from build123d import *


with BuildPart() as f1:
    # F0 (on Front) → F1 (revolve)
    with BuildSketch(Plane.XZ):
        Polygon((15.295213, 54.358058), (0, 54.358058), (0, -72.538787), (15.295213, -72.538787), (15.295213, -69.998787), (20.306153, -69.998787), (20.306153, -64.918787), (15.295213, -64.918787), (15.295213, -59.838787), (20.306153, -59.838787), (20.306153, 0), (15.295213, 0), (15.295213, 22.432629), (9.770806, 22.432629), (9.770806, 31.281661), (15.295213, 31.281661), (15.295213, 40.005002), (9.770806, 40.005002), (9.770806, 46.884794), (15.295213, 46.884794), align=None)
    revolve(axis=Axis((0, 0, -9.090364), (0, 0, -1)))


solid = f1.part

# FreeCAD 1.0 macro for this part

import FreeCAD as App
import Part
import Sketcher

V = App.Vector
Q = App.Units.Quantity

doc = App.newDocument("Part")
body = doc.addObject("PartDesign::Body", "Body")

sketch1 = doc.addObject("Sketcher::SketchObject", "Sketch")
body.addObject(sketch1)
sketch1.AttachmentSupport = (doc.XZ_Plane, [""])
sketch1.MapMode = "FlatFace"
sketch1.addGeometry(Part.LineSegment(V(15.3, 54.4, 0), V(0, 54.4, 0)), False)
sketch1.addGeometry(Part.LineSegment(V(0, 54.4, 0), V(0, -72.5, 0)), False)
sketch1.addGeometry(Part.LineSegment(V(0, -72.5, 0), V(15.3, -72.5, 0)), False)
sketch1.addGeometry(Part.LineSegment(V(15.3, -72.5, 0), V(15.3, -70, 0)), False)
sketch1.addGeometry(Part.LineSegment(V(15.3, -70, 0), V(20.3, -70, 0)), False)
sketch1.addGeometry(Part.LineSegment(V(20.3, -70, 0), V(20.3, -64.9, 0)), False)
sketch1.addGeometry(Part.LineSegment(V(20.3, -64.9, 0), V(15.3, -64.9, 0)), False)
sketch1.addGeometry(Part.LineSegment(V(15.3, -64.9, 0), V(15.3, -59.8, 0)), False)
sketch1.addGeometry(Part.LineSegment(V(15.3, -59.8, 0), V(20.3, -59.8, 0)), False)
sketch1.addGeometry(Part.LineSegment(V(20.3, -59.8, 0), V(20.3, 0, 0)), False)
sketch1.addGeometry(Part.LineSegment(V(20.3, 0, 0), V(15.3, 0, 0)), False)
sketch1.addGeometry(Part.LineSegment(V(15.3, 0, 0), V(15.3, 22.4, 0)), False)
sketch1.addGeometry(Part.LineSegment(V(15.3, 22.4, 0), V(9.8, 22.4, 0)), False)
sketch1.addGeometry(Part.LineSegment(V(9.8, 22.4, 0), V(9.8, 31.3, 0)), False)
sketch1.addGeometry(Part.LineSegment(V(9.8, 31.3, 0), V(15.3, 31.3, 0)), False)
sketch1.addGeometry(Part.LineSegment(V(15.3, 31.3, 0), V(15.3, 40, 0)), False)
sketch1.addGeometry(Part.LineSegment(V(15.3, 40, 0), V(9.8, 40, 0)), False)
sketch1.addGeometry(Part.LineSegment(V(9.8, 40, 0), V(9.8, 46.9, 0)), False)
sketch1.addGeometry(Part.LineSegment(V(9.8, 46.9, 0), V(15.3, 46.9, 0)), False)
sketch1.addGeometry(Part.LineSegment(V(15.3, 46.9, 0), V(15.3, 54.4, 0)), False)
sketch1.addConstraint(Sketcher.Constraint("Coincident", 0, 2, 1, 1))
sketch1.addConstraint(Sketcher.Constraint("Coincident", 1, 2, 2, 1))
sketch1.addConstraint(Sketcher.Constraint("Coincident", 2, 2, 3, 1))
sketch1.addConstraint(Sketcher.Constraint("Coincident", 3, 2, 4, 1))
sketch1.addConstraint(Sketcher.Constraint("Coincident", 4, 2, 5, 1))
sketch1.addConstraint(Sketcher.Constraint("Coincident", 5, 2, 6, 1))
sketch1.addConstraint(Sketcher.Constraint("Coincident", 6, 2, 7, 1))
sketch1.addConstraint(Sketcher.Constraint("Coincident", 7, 2, 8, 1))
sketch1.addConstraint(Sketcher.Constraint("Coincident", 8, 2, 9, 1))
sketch1.addConstraint(Sketcher.Constraint("Coincident", 9, 2, 10, 1))
sketch1.addConstraint(Sketcher.Constraint("Coincident", 10, 2, 11, 1))
sketch1.addConstraint(Sketcher.Constraint("Coincident", 11, 2, 12, 1))
sketch1.addConstraint(Sketcher.Constraint("Coincident", 12, 2, 13, 1))
sketch1.addConstraint(Sketcher.Constraint("Coincident", 13, 2, 14, 1))
sketch1.addConstraint(Sketcher.Constraint("Coincident", 14, 2, 15, 1))
sketch1.addConstraint(Sketcher.Constraint("Coincident", 15, 2, 16, 1))
sketch1.addConstraint(Sketcher.Constraint("Coincident", 16, 2, 17, 1))
sketch1.addConstraint(Sketcher.Constraint("Coincident", 17, 2, 18, 1))
sketch1.addConstraint(Sketcher.Constraint("Coincident", 18, 2, 19, 1))
sketch1.addConstraint(Sketcher.Constraint("Coincident", 19, 2, 0, 1))
sketch1.addConstraint(Sketcher.Constraint("Horizontal", 0))
sketch1.addConstraint(Sketcher.Constraint("Vertical", 1))
sketch1.addConstraint(Sketcher.Constraint("Horizontal", 2))
sketch1.addConstraint(Sketcher.Constraint("Vertical", 3))
sketch1.addConstraint(Sketcher.Constraint("Horizontal", 4))
sketch1.addConstraint(Sketcher.Constraint("Vertical", 5))
sketch1.addConstraint(Sketcher.Constraint("Horizontal", 6))
sketch1.addConstraint(Sketcher.Constraint("Vertical", 7))
sketch1.addConstraint(Sketcher.Constraint("Horizontal", 8))
sketch1.addConstraint(Sketcher.Constraint("Vertical", 9))
sketch1.addConstraint(Sketcher.Constraint("Horizontal", 10))
sketch1.addConstraint(Sketcher.Constraint("Vertical", 11))
sketch1.addConstraint(Sketcher.Constraint("Horizontal", 12))
sketch1.addConstraint(Sketcher.Constraint("Vertical", 13))
sketch1.addConstraint(Sketcher.Constraint("Horizontal", 14))
sketch1.addConstraint(Sketcher.Constraint("Vertical", 15))
sketch1.addConstraint(Sketcher.Constraint("Horizontal", 16))
sketch1.addConstraint(Sketcher.Constraint("Vertical", 17))
sketch1.addConstraint(Sketcher.Constraint("Horizontal", 18))
sketch1.addConstraint(Sketcher.Constraint("Vertical", 19))
sketch1.addConstraint(Sketcher.Constraint("PointOnObject", 0, 2, -2))
sketch1.addConstraint(Sketcher.Constraint("PointOnObject", 9, 2, -1))
sketch1.addConstraint(Sketcher.Constraint("Vertical", 3, 2, 6, 2))
sketch1.addConstraint(Sketcher.Constraint("Vertical", 5, 2, 8, 2))
sketch1.addConstraint(Sketcher.Constraint("Vertical", 7, 2, 10, 2))
sketch1.addConstraint(Sketcher.Constraint("Vertical", 11, 2, 14, 2))
sketch1.addConstraint(Sketcher.Constraint("Vertical", 13, 2, 16, 2))
sketch1.addConstraint(Sketcher.Constraint("Vertical", 15, 2, 18, 2))
sketch1.addConstraint(Sketcher.Constraint("Equal", 5, 7))
sketch1.addConstraint(Sketcher.Constraint("DistanceY", 3, 1, 3, 2, Q("0.1 in")))
sketch1.addConstraint(Sketcher.Constraint("DistanceY", 5, 1, 5, 2, Q("0.2 in")))
sketch1.addConstraint(Sketcher.Constraint("DistanceY", -1, 1, 15, 2, Q("1.5750001 in")))
sketch1.addConstraint(Sketcher.Constraint("DistanceX", 4, 1, 4, 2, 5.01094))
sketch1.addConstraint(Sketcher.Constraint("DistanceY", 11, 1, 11, 2, 22.432629))
sketch1.addConstraint(Sketcher.Constraint("DistanceY", 15, 1, 15, 2, 8.723341))
sketch1.addConstraint(Sketcher.Constraint("DistanceX", 0, 2, 0, 1, 15.295213))
sketch1.addConstraint(Sketcher.Constraint("DistanceX", 12, 2, 12, 1, 5.524407))
sketch1.addConstraint(Sketcher.Constraint("DistanceY", 1, 2, 1, 1, 126.896845))
sketch1.addConstraint(Sketcher.Constraint("DistanceY", 9, 1, 9, 2, 59.838787))
sketch1.addConstraint(Sketcher.Constraint("DistanceY", 17, 1, 17, 2, 6.879792))
revolution = doc.addObject("PartDesign::Revolution", "Revolution")
body.addObject(revolution)
revolution.Profile = sketch1
revolution.ReferenceAxis = (sketch1, ["V_Axis"])
revolution.Angle = 360

doc.recompute()
